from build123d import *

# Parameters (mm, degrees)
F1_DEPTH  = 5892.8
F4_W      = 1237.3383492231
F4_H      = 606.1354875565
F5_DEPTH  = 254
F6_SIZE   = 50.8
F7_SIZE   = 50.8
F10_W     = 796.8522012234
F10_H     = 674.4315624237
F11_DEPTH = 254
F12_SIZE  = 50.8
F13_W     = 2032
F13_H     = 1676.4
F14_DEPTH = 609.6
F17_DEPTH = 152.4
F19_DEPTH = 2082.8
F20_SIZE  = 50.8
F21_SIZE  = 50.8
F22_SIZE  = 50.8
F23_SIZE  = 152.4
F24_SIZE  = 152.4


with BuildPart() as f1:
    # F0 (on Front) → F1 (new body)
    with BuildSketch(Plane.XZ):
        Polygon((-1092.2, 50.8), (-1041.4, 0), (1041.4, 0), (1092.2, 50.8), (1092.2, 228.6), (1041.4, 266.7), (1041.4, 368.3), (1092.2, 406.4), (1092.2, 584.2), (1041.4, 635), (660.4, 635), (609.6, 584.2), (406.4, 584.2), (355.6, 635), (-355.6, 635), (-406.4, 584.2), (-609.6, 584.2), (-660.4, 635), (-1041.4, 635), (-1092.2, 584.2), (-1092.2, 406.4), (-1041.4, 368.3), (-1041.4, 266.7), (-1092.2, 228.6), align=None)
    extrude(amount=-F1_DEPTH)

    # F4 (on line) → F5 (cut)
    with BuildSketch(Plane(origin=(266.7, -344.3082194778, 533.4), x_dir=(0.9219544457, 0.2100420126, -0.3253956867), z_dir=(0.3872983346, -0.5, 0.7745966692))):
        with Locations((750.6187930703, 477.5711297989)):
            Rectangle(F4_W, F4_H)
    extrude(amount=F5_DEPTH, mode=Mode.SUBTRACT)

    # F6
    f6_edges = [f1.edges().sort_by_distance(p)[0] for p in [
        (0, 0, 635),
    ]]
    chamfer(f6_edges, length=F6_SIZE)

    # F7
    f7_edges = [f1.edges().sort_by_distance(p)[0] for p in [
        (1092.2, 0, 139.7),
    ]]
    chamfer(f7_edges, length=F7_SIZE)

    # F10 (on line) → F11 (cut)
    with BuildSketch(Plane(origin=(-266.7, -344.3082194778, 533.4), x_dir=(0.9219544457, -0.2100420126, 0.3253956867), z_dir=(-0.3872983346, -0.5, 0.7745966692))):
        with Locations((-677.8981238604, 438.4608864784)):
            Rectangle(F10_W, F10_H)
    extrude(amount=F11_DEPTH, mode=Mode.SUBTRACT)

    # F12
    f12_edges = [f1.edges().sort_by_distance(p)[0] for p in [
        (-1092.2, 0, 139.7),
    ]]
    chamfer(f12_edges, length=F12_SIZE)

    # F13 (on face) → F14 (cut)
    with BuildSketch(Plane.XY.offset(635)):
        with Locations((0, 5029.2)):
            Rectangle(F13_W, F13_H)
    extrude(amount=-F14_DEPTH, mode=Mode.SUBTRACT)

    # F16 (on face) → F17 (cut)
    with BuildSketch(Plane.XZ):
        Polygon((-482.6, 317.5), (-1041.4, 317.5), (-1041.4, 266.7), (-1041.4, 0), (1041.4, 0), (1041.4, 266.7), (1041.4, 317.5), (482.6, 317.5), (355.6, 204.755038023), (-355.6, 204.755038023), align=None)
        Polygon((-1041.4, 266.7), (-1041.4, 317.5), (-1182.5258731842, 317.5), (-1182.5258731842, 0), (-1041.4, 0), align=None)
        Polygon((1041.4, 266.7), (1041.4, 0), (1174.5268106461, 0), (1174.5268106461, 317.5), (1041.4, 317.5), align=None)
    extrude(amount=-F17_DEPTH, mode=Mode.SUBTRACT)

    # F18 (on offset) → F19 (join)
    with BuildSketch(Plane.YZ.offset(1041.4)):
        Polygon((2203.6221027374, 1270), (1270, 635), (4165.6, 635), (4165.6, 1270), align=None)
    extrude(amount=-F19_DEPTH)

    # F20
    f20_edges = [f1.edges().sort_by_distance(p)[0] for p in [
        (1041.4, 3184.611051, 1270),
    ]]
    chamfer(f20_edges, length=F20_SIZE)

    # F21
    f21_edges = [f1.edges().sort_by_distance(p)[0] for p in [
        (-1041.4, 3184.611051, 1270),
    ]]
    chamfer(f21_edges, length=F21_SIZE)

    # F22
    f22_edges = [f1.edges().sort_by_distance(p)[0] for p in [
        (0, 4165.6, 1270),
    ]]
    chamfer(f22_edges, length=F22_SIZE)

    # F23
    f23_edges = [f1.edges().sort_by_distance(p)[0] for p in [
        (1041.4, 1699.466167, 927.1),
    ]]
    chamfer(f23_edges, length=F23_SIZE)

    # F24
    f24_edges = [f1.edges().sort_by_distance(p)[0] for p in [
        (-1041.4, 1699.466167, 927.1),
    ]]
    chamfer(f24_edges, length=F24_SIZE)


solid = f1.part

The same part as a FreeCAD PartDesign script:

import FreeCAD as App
import Part
import Sketcher

V = App.Vector
Q = App.Units.Quantity


def edges_at(feature, points):
    """Names of the edges that pass closest to the given points."""
    edges = feature.Shape.Edges
    near = lambda p: min(range(len(edges)), key=lambda i: edges[i].distToShape(Part.Vertex(*p))[0])
    return sorted({f"Edge{near(p) + 1}" for p in points})


def add_polygon(sketch, points):
    """Adds a closed chain of lines whose ends are joined by coincident constraints."""
    first, n = sketch.GeometryCount, len(points)
    for a, b in zip(points, points[1:] + points[:1]):
        sketch.addGeometry(Part.LineSegment(App.Vector(*a, 0), App.Vector(*b, 0)), False)
    for i in range(n):
        sketch.addConstraint(Sketcher.Constraint("Coincident", first + i, 2, first + (i + 1) % n, 1))

doc = App.newDocument("Part")
params = doc.addObject("Spreadsheet::Sheet", "Params")
for row, (alias, value) in enumerate([
    ("sketch1_width", "82 in"),
    ("sketch1_width2", "15 in"),
    ("sketch1_width3", "8 in"),
    ("sketch1_width4", "28 in"),
    ("sketch1_height", "7 in"),
    ("pad1_length", "232 in"),
    ("pocket1_length", "10 in"),
    ("chamfer_size", "2 in"),
    ("chamfer2_size", "2 in"),
    ("pocket2_length", "10 in"),
    ("chamfer3_size", "2 in"),
    ("sketch4_width", "80 in"),
    ("sketch4_height", "66 in"),
    ("pocket3_length", "24 in"),
    ("sketch5_width", "28 in"),
    ("sketch5_height", "12.5 in"),
    ("pocket4_length", "6 in"),
    ("sketch6_width", "114 in"),
    ("sketch6_height", "25 in"),
    ("pad2_length", "82 in"),
    ("chamfer4_size", "2 in"),
    ("chamfer5_size", "2 in"),
    ("chamfer6_size", "2 in"),
    ("chamfer7_size", "6 in"),
    ("chamfer8_size", "6 in"),
], start=1):
    params.set(f"A{row}", alias)
    params.set(f"B{row}", "=" + value)
    params.setAlias(f"B{row}", alias)

body = doc.addObject("PartDesign::Body", "Body")

sketch1 = doc.addObject("Sketcher::SketchObject", "Sketch")
body.addObject(sketch1)
sketch1.AttachmentSupport = (doc.XZ_Plane, [""])
sketch1.MapMode = "FlatFace"
add_polygon(sketch1, [(-1092.2, 50.8), (-1041.4, 0), (1041.4, 0), (1092.2, 50.8), (1092.2, 228.6), (1041.4, 266.7), (1041.4, 368.3), (1092.2, 406.4), (1092.2, 584.2), (1041.4, 635), (660.4, 635), (609.6, 584.2), (406.4, 584.2), (355.6, 635), (-355.6, 635), (-406.4, 584.2), (-609.6, 584.2), (-660.4, 635), (-1041.4, 635), (-1092.2, 584.2), (-1092.2, 406.4), (-1041.4, 368.3), (-1041.4, 266.7), (-1092.2, 228.6)])
sketch1.addConstraint(Sketcher.Constraint("Horizontal", 1))
sketch1.addConstraint(Sketcher.Constraint("Vertical", 3))
sketch1.addConstraint(Sketcher.Constraint("Vertical", 5))
sketch1.addConstraint(Sketcher.Constraint("Vertical", 7))
sketch1.addConstraint(Sketcher.Constraint("Horizontal", 9))
sketch1.addConstraint(Sketcher.Constraint("Horizontal", 11))
sketch1.addConstraint(Sketcher.Constraint("Horizontal", 13))
sketch1.addConstraint(Sketcher.Constraint("Horizontal", 15))
sketch1.addConstraint(Sketcher.Constraint("Horizontal", 17))
sketch1.addConstraint(Sketcher.Constraint("Vertical", 19))
sketch1.addConstraint(Sketcher.Constraint("Vertical", 21))
sketch1.addConstraint(Sketcher.Constraint("Vertical", 23))
sketch1.addConstraint(Sketcher.Constraint("Symmetric", 0, 2, 1, 2, -1, 1))
sketch1.addConstraint(Sketcher.Constraint("Symmetric", 11, 2, 14, 2, -2))
sketch1.addConstraint(Sketcher.Constraint("Symmetric", 9, 2, 16, 2, -2))
sketch1.addConstraint(Sketcher.Constraint("Symmetric", 7, 2, 18, 2, -2))
sketch1.addConstraint(Sketcher.Constraint("Symmetric", 5, 2, 20, 2, -2))
sketch1.addConstraint(Sketcher.Constraint("Symmetric", 3, 2, 22, 2, -2))
sketch1.addConstraint(Sketcher.Constraint("Perpendicular", 0, 2))
sketch1.addConstraint(Sketcher.Constraint("Perpendicular", 2, 8))
sketch1.addConstraint(Sketcher.Constraint("Perpendicular", 8, 10))
sketch1.addConstraint(Sketcher.Constraint("Perpendicular", 10, 12))
sketch1.addConstraint(Sketcher.Constraint("Perpendicular", 12, 14))
sketch1.addConstraint(Sketcher.Constraint("Perpendicular", 14, 16))
sketch1.addConstraint(Sketcher.Constraint("Perpendicular", 16, 18))
sketch1.addConstraint(Sketcher.Constraint("Parallel", 4, 20))
sketch1.addConstraint(Sketcher.Constraint("Parallel", 6, 22))
sketch1.addConstraint(Sketcher.Constraint("Horizontal", 7, 2, 10, 2))
sketch1.addConstraint(Sketcher.Constraint("Horizontal", 9, 2, 12, 2))
sketch1.addConstraint(Sketcher.Constraint("Horizontal", 6, 2, 19, 2))
sketch1.addConstraint(Sketcher.Constraint("Horizontal", 2, 2, 23, 2))
sketch1.addConstraint(Sketcher.Constraint("Vertical", 1, 2, 4, 2))
sketch1.addConstraint(Sketcher.Constraint("Vertical", 3, 2, 6, 2))
sketch1.addConstraint(Sketcher.Constraint("Vertical", 5, 2, 8, 2))
sketch1.addConstraint(Sketcher.Constraint("Equal", 3, 7))
sketch1.addConstraint(Sketcher.Constraint("DistanceX", 1, 1, 1, 2, Q("82 in")))
sketch1.addConstraint(Sketcher.Constraint("DistanceX", 9, 2, 9, 1, Q("15 in")))
sketch1.addConstraint(Sketcher.Constraint("DistanceX", 11, 2, 11, 1, Q("8 in")))
sketch1.addConstraint(Sketcher.Constraint("DistanceX", 13, 2, 13, 1, Q("28 in")))
sketch1.addConstraint(Sketcher.Constraint("DistanceY", 3, 1, 3, 2, Q("7 in")))
sketch1.addConstraint(Sketcher.Constraint("DistanceY", 5, 1, 5, 2, Q("4 in")))
sketch1.addConstraint(Sketcher.Constraint("DistanceY", -1, 1, 6, 2, Q("16 in")))
sketch1.setExpression("Constraints[59]", "Params.sketch1_width")
sketch1.setExpression("Constraints[60]", "Params.sketch1_width2")
sketch1.setExpression("Constraints[61]", "Params.sketch1_width3")
sketch1.setExpression("Constraints[62]", "Params.sketch1_width4")
sketch1.setExpression("Constraints[63]", "Params.sketch1_height")
pad1 = doc.addObject("PartDesign::Pad", "Pad")
body.addObject(pad1)
pad1.Profile = sketch1
pad1.setExpression("Length", "Params.pad1_length")
pad1.Reversed = True

sketch2 = doc.addObject("Sketcher::SketchObject", "Sketch001")
body.addObject(sketch2)
sketch2.Placement = App.Placement(V(266.7, -344.308219, 533.4), App.Rotation(V(0.921954446, 0.210042013, -0.325395687), V(0, 0.840168051, 0.542326145), V(0.387298335, -0.5, 0.774596669), "ZXY"))
add_polygon(sketch2, [(131.949619, 780.638874), (131.949619, 174.503386), (1369.287969, 174.503386), (1369.287969, 780.638874)])
sketch2.addConstraint(Sketcher.Constraint("Vertical", 0))
sketch2.addConstraint(Sketcher.Constraint("Horizontal", 1))
sketch2.addConstraint(Sketcher.Constraint("Vertical", 2))
sketch2.addConstraint(Sketcher.Constraint("Horizontal", 3))
sketch2.addConstraint(Sketcher.Constraint("DistanceX", 1, 1, 1, 2, 1237.33835))
sketch2.addConstraint(Sketcher.Constraint("DistanceY", 0, 2, 0, 1, 606.135488))
sketch2.addConstraint(Sketcher.Constraint("DistanceX", -1, 1, 0, 2, 131.949619))
sketch2.addConstraint(Sketcher.Constraint("DistanceY", -1, 1, 0, 2, 174.503386))
pocket1 = doc.addObject("PartDesign::Pocket", "Pocket")
body.addObject(pocket1)
pocket1.Profile = sketch2
pocket1.setExpression("Length", "Params.pocket1_length")
pocket1.Reversed = True
doc.recompute()

chamfer = doc.addObject("PartDesign::Chamfer", "Chamfer")
body.addObject(chamfer)
chamfer.Base = (pocket1, edges_at(pocket1, [(0, 0, 635)]))
chamfer.setExpression("Size", "Params.chamfer_size")
doc.recompute()

chamfer2 = doc.addObject("PartDesign::Chamfer", "Chamfer001")
body.addObject(chamfer2)
chamfer2.Base = (chamfer, edges_at(chamfer, [(1092.2, 0, 139.7)]))
chamfer2.setExpression("Size", "Params.chamfer2_size")

sketch3 = doc.addObject("Sketcher::SketchObject", "Sketch002")
body.addObject(sketch3)
sketch3.Placement = App.Placement(V(-266.7, -344.308219, 533.4), App.Rotation(V(0.921954446, -0.210042013, 0.325395687), V(0, 0.840168051, 0.542326145), V(-0.387298335, -0.5, 0.774596669), "ZXY"))
add_polygon(sketch3, [(-1076.324225, 775.676668), (-1076.324225, 101.245105), (-279.472023, 101.245105), (-279.472023, 775.676668)])
sketch3.addConstraint(Sketcher.Constraint("Vertical", 0))
sketch3.addConstraint(Sketcher.Constraint("Horizontal", 1))
sketch3.addConstraint(Sketcher.Constraint("Vertical", 2))
sketch3.addConstraint(Sketcher.Constraint("Horizontal", 3))
sketch3.addConstraint(Sketcher.Constraint("DistanceX", 1, 1, 1, 2, 796.852202))
sketch3.addConstraint(Sketcher.Constraint("DistanceY", 0, 2, 0, 1, 674.431563))
sketch3.addConstraint(Sketcher.Constraint("DistanceY", -1, 1, 2, 2, 775.676668))
sketch3.addConstraint(Sketcher.Constraint("DistanceX", 0, 2, -1, 1, 1076.324225))
pocket2 = doc.addObject("PartDesign::Pocket", "Pocket001")
body.addObject(pocket2)
pocket2.Profile = sketch3
pocket2.setExpression("Length", "Params.pocket2_length")
pocket2.Reversed = True
doc.recompute()

chamfer3 = doc.addObject("PartDesign::Chamfer", "Chamfer002")
body.addObject(chamfer3)
chamfer3.Base = (pocket2, edges_at(pocket2, [(-1092.2, 0, 139.7)]))
chamfer3.setExpression("Size", "Params.chamfer3_size")

sketch4 = doc.addObject("Sketcher::SketchObject", "Sketch003")
body.addObject(sketch4)
sketch4.AttachmentSupport = (doc.XY_Plane, [""])
sketch4.MapMode = "FlatFace"
sketch4.AttachmentOffset = App.Placement(V(0, 0, 25 * 25.4), App.Rotation())
add_polygon(sketch4, [(-1016, 5867.4), (-1016, 4191), (1016, 4191), (1016, 5867.4)])
sketch4.addConstraint(Sketcher.Constraint("Vertical", 0))
sketch4.addConstraint(Sketcher.Constraint("Horizontal", 1))
sketch4.addConstraint(Sketcher.Constraint("Vertical", 2))
sketch4.addConstraint(Sketcher.Constraint("Horizontal", 3))
sketch4.addConstraint(Sketcher.Constraint("DistanceX", 1, 1, 1, 2, Q("80 in")))
sketch4.addConstraint(Sketcher.Constraint("DistanceY", 0, 2, 0, 1, Q("66 in")))
sketch4.addConstraint(Sketcher.Constraint("DistanceX", 0, 2, -1, 1, Q("40 in")))
sketch4.addConstraint(Sketcher.Constraint("DistanceY", -1, 1, 0, 2, Q("165 in")))
sketch4.setExpression("Constraints[8]", "Params.sketch4_width")
sketch4.setExpression("Constraints[9]", "Params.sketch4_height")
pocket3 = doc.addObject("PartDesign::Pocket", "Pocket002")
body.addObject(pocket3)
pocket3.Profile = sketch4
pocket3.setExpression("Length", "Params.pocket3_length")

sketch5 = doc.addObject("Sketcher::SketchObject", "Sketch004")
body.addObject(sketch5)
sketch5.AttachmentSupport = (doc.XZ_Plane, [""])
sketch5.MapMode = "FlatFace"
add_polygon(sketch5, [(-482.6, 317.5), (-1182.525873, 317.5), (-1182.525873, 0), (1174.526811, 0), (1174.526811, 317.5), (482.6, 317.5), (355.6, 204.755038), (-355.6, 204.755038)])
sketch5.addConstraint(Sketcher.Constraint("Horizontal", 0))
sketch5.addConstraint(Sketcher.Constraint("Vertical", 1))
sketch5.addConstraint(Sketcher.Constraint("Horizontal", 2))
sketch5.addConstraint(Sketcher.Constraint("Vertical", 3))
sketch5.addConstraint(Sketcher.Constraint("Horizontal", 4))
sketch5.addConstraint(Sketcher.Constraint("Horizontal", 6))
sketch5.addConstraint(Sketcher.Constraint("Symmetric", 4, 2, 7, 2, -2))
sketch5.addConstraint(Sketcher.Constraint("PointOnObject", 1, 2, -1))
sketch5.addConstraint(Sketcher.Constraint("Equal", 5, 7))
sketch5.addConstraint(Sketcher.Constraint("DistanceX", 6, 2, 6, 1, Q("28 in")))
sketch5.addConstraint(Sketcher.Constraint("DistanceY", 1, 2, 1, 1, Q("12.5 in")))
sketch5.addConstraint(Sketcher.Constraint("DistanceX", -1, 1, 4, 2, Q("19 in")))
sketch5.addConstraint(Sketcher.Constraint("DistanceX", 4, 2, 4, 1, 691.926811))
sketch5.addConstraint(Sketcher.Constraint("DistanceX", 0, 2, 0, 1, 699.925873))
sketch5.addConstraint(Sketcher.Constraint("DistanceY", -1, 1, 5, 2, 204.755038))
sketch5.setExpression("Constraints[17]", "Params.sketch5_width")
sketch5.setExpression("Constraints[18]", "Params.sketch5_height")
pocket4 = doc.addObject("PartDesign::Pocket", "Pocket003")
body.addObject(pocket4)
pocket4.Profile = sketch5
pocket4.setExpression("Length", "Params.pocket4_length")

sketch6 = doc.addObject("Sketcher::SketchObject", "Sketch005")
body.addObject(sketch6)
sketch6.AttachmentSupport = (doc.YZ_Plane, [""])
sketch6.MapMode = "FlatFace"
sketch6.AttachmentOffset = App.Placement(V(0, 0, 41 * 25.4), App.Rotation())
add_polygon(sketch6, [(2203.622103, 1270), (1270, 635), (4165.6, 635), (4165.6, 1270)])
sketch6.addConstraint(Sketcher.Constraint("Horizontal", 1))
sketch6.addConstraint(Sketcher.Constraint("Vertical", 2))
sketch6.addConstraint(Sketcher.Constraint("Horizontal", 3))
sketch6.addConstraint(Sketcher.Constraint("DistanceX", 1, 1, 1, 2, Q("114 in")))
sketch6.addConstraint(Sketcher.Constraint("DistanceY", 2, 1, 2, 2, Q("25 in")))
sketch6.addConstraint(Sketcher.Constraint("DistanceX", -1, 1, 0, 2, Q("50 in")))
sketch6.addConstraint(Sketcher.Constraint("DistanceY", -1, 1, 0, 2, Q("25 in")))
sketch6.addConstraint(Sketcher.Constraint("Distance", 0, 1129.103729))
sketch6.setExpression("Constraints[7]", "Params.sketch6_width")
sketch6.setExpression("Constraints[8]", "Params.sketch6_height")
pad2 = doc.addObject("PartDesign::Pad", "Pad001")
body.addObject(pad2)
pad2.Profile = sketch6
pad2.setExpression("Length", "Params.pad2_length")
pad2.Reversed = True
doc.recompute()

chamfer4 = doc.addObject("PartDesign::Chamfer", "Chamfer003")
body.addObject(chamfer4)
chamfer4.Base = (pad2, edges_at(pad2, [(1041.4, 3184.611, 1270)]))
chamfer4.setExpression("Size", "Params.chamfer4_size")
doc.recompute()

chamfer5 = doc.addObject("PartDesign::Chamfer", "Chamfer004")
body.addObject(chamfer5)
chamfer5.Base = (chamfer4, edges_at(chamfer4, [(-1041.4, 3184.611, 1270)]))
chamfer5.setExpression("Size", "Params.chamfer5_size")
doc.recompute()

chamfer6 = doc.addObject("PartDesign::Chamfer", "Chamfer005")
body.addObject(chamfer6)
chamfer6.Base = (chamfer5, edges_at(chamfer5, [(0, 4165.6, 1270)]))
chamfer6.setExpression("Size", "Params.chamfer6_size")
doc.recompute()

chamfer7 = doc.addObject("PartDesign::Chamfer", "Chamfer006")
body.addObject(chamfer7)
chamfer7.Base = (chamfer6, edges_at(chamfer6, [(1041.4, 1699.466, 927.1)]))
chamfer7.setExpression("Size", "Params.chamfer7_size")
doc.recompute()

chamfer8 = doc.addObject("PartDesign::Chamfer", "Chamfer007")
body.addObject(chamfer8)
chamfer8.Base = (chamfer7, edges_at(chamfer7, [(-1041.4, 1699.466, 927.1)]))
chamfer8.setExpression("Size", "Params.chamfer8_size")

doc.recompute()
